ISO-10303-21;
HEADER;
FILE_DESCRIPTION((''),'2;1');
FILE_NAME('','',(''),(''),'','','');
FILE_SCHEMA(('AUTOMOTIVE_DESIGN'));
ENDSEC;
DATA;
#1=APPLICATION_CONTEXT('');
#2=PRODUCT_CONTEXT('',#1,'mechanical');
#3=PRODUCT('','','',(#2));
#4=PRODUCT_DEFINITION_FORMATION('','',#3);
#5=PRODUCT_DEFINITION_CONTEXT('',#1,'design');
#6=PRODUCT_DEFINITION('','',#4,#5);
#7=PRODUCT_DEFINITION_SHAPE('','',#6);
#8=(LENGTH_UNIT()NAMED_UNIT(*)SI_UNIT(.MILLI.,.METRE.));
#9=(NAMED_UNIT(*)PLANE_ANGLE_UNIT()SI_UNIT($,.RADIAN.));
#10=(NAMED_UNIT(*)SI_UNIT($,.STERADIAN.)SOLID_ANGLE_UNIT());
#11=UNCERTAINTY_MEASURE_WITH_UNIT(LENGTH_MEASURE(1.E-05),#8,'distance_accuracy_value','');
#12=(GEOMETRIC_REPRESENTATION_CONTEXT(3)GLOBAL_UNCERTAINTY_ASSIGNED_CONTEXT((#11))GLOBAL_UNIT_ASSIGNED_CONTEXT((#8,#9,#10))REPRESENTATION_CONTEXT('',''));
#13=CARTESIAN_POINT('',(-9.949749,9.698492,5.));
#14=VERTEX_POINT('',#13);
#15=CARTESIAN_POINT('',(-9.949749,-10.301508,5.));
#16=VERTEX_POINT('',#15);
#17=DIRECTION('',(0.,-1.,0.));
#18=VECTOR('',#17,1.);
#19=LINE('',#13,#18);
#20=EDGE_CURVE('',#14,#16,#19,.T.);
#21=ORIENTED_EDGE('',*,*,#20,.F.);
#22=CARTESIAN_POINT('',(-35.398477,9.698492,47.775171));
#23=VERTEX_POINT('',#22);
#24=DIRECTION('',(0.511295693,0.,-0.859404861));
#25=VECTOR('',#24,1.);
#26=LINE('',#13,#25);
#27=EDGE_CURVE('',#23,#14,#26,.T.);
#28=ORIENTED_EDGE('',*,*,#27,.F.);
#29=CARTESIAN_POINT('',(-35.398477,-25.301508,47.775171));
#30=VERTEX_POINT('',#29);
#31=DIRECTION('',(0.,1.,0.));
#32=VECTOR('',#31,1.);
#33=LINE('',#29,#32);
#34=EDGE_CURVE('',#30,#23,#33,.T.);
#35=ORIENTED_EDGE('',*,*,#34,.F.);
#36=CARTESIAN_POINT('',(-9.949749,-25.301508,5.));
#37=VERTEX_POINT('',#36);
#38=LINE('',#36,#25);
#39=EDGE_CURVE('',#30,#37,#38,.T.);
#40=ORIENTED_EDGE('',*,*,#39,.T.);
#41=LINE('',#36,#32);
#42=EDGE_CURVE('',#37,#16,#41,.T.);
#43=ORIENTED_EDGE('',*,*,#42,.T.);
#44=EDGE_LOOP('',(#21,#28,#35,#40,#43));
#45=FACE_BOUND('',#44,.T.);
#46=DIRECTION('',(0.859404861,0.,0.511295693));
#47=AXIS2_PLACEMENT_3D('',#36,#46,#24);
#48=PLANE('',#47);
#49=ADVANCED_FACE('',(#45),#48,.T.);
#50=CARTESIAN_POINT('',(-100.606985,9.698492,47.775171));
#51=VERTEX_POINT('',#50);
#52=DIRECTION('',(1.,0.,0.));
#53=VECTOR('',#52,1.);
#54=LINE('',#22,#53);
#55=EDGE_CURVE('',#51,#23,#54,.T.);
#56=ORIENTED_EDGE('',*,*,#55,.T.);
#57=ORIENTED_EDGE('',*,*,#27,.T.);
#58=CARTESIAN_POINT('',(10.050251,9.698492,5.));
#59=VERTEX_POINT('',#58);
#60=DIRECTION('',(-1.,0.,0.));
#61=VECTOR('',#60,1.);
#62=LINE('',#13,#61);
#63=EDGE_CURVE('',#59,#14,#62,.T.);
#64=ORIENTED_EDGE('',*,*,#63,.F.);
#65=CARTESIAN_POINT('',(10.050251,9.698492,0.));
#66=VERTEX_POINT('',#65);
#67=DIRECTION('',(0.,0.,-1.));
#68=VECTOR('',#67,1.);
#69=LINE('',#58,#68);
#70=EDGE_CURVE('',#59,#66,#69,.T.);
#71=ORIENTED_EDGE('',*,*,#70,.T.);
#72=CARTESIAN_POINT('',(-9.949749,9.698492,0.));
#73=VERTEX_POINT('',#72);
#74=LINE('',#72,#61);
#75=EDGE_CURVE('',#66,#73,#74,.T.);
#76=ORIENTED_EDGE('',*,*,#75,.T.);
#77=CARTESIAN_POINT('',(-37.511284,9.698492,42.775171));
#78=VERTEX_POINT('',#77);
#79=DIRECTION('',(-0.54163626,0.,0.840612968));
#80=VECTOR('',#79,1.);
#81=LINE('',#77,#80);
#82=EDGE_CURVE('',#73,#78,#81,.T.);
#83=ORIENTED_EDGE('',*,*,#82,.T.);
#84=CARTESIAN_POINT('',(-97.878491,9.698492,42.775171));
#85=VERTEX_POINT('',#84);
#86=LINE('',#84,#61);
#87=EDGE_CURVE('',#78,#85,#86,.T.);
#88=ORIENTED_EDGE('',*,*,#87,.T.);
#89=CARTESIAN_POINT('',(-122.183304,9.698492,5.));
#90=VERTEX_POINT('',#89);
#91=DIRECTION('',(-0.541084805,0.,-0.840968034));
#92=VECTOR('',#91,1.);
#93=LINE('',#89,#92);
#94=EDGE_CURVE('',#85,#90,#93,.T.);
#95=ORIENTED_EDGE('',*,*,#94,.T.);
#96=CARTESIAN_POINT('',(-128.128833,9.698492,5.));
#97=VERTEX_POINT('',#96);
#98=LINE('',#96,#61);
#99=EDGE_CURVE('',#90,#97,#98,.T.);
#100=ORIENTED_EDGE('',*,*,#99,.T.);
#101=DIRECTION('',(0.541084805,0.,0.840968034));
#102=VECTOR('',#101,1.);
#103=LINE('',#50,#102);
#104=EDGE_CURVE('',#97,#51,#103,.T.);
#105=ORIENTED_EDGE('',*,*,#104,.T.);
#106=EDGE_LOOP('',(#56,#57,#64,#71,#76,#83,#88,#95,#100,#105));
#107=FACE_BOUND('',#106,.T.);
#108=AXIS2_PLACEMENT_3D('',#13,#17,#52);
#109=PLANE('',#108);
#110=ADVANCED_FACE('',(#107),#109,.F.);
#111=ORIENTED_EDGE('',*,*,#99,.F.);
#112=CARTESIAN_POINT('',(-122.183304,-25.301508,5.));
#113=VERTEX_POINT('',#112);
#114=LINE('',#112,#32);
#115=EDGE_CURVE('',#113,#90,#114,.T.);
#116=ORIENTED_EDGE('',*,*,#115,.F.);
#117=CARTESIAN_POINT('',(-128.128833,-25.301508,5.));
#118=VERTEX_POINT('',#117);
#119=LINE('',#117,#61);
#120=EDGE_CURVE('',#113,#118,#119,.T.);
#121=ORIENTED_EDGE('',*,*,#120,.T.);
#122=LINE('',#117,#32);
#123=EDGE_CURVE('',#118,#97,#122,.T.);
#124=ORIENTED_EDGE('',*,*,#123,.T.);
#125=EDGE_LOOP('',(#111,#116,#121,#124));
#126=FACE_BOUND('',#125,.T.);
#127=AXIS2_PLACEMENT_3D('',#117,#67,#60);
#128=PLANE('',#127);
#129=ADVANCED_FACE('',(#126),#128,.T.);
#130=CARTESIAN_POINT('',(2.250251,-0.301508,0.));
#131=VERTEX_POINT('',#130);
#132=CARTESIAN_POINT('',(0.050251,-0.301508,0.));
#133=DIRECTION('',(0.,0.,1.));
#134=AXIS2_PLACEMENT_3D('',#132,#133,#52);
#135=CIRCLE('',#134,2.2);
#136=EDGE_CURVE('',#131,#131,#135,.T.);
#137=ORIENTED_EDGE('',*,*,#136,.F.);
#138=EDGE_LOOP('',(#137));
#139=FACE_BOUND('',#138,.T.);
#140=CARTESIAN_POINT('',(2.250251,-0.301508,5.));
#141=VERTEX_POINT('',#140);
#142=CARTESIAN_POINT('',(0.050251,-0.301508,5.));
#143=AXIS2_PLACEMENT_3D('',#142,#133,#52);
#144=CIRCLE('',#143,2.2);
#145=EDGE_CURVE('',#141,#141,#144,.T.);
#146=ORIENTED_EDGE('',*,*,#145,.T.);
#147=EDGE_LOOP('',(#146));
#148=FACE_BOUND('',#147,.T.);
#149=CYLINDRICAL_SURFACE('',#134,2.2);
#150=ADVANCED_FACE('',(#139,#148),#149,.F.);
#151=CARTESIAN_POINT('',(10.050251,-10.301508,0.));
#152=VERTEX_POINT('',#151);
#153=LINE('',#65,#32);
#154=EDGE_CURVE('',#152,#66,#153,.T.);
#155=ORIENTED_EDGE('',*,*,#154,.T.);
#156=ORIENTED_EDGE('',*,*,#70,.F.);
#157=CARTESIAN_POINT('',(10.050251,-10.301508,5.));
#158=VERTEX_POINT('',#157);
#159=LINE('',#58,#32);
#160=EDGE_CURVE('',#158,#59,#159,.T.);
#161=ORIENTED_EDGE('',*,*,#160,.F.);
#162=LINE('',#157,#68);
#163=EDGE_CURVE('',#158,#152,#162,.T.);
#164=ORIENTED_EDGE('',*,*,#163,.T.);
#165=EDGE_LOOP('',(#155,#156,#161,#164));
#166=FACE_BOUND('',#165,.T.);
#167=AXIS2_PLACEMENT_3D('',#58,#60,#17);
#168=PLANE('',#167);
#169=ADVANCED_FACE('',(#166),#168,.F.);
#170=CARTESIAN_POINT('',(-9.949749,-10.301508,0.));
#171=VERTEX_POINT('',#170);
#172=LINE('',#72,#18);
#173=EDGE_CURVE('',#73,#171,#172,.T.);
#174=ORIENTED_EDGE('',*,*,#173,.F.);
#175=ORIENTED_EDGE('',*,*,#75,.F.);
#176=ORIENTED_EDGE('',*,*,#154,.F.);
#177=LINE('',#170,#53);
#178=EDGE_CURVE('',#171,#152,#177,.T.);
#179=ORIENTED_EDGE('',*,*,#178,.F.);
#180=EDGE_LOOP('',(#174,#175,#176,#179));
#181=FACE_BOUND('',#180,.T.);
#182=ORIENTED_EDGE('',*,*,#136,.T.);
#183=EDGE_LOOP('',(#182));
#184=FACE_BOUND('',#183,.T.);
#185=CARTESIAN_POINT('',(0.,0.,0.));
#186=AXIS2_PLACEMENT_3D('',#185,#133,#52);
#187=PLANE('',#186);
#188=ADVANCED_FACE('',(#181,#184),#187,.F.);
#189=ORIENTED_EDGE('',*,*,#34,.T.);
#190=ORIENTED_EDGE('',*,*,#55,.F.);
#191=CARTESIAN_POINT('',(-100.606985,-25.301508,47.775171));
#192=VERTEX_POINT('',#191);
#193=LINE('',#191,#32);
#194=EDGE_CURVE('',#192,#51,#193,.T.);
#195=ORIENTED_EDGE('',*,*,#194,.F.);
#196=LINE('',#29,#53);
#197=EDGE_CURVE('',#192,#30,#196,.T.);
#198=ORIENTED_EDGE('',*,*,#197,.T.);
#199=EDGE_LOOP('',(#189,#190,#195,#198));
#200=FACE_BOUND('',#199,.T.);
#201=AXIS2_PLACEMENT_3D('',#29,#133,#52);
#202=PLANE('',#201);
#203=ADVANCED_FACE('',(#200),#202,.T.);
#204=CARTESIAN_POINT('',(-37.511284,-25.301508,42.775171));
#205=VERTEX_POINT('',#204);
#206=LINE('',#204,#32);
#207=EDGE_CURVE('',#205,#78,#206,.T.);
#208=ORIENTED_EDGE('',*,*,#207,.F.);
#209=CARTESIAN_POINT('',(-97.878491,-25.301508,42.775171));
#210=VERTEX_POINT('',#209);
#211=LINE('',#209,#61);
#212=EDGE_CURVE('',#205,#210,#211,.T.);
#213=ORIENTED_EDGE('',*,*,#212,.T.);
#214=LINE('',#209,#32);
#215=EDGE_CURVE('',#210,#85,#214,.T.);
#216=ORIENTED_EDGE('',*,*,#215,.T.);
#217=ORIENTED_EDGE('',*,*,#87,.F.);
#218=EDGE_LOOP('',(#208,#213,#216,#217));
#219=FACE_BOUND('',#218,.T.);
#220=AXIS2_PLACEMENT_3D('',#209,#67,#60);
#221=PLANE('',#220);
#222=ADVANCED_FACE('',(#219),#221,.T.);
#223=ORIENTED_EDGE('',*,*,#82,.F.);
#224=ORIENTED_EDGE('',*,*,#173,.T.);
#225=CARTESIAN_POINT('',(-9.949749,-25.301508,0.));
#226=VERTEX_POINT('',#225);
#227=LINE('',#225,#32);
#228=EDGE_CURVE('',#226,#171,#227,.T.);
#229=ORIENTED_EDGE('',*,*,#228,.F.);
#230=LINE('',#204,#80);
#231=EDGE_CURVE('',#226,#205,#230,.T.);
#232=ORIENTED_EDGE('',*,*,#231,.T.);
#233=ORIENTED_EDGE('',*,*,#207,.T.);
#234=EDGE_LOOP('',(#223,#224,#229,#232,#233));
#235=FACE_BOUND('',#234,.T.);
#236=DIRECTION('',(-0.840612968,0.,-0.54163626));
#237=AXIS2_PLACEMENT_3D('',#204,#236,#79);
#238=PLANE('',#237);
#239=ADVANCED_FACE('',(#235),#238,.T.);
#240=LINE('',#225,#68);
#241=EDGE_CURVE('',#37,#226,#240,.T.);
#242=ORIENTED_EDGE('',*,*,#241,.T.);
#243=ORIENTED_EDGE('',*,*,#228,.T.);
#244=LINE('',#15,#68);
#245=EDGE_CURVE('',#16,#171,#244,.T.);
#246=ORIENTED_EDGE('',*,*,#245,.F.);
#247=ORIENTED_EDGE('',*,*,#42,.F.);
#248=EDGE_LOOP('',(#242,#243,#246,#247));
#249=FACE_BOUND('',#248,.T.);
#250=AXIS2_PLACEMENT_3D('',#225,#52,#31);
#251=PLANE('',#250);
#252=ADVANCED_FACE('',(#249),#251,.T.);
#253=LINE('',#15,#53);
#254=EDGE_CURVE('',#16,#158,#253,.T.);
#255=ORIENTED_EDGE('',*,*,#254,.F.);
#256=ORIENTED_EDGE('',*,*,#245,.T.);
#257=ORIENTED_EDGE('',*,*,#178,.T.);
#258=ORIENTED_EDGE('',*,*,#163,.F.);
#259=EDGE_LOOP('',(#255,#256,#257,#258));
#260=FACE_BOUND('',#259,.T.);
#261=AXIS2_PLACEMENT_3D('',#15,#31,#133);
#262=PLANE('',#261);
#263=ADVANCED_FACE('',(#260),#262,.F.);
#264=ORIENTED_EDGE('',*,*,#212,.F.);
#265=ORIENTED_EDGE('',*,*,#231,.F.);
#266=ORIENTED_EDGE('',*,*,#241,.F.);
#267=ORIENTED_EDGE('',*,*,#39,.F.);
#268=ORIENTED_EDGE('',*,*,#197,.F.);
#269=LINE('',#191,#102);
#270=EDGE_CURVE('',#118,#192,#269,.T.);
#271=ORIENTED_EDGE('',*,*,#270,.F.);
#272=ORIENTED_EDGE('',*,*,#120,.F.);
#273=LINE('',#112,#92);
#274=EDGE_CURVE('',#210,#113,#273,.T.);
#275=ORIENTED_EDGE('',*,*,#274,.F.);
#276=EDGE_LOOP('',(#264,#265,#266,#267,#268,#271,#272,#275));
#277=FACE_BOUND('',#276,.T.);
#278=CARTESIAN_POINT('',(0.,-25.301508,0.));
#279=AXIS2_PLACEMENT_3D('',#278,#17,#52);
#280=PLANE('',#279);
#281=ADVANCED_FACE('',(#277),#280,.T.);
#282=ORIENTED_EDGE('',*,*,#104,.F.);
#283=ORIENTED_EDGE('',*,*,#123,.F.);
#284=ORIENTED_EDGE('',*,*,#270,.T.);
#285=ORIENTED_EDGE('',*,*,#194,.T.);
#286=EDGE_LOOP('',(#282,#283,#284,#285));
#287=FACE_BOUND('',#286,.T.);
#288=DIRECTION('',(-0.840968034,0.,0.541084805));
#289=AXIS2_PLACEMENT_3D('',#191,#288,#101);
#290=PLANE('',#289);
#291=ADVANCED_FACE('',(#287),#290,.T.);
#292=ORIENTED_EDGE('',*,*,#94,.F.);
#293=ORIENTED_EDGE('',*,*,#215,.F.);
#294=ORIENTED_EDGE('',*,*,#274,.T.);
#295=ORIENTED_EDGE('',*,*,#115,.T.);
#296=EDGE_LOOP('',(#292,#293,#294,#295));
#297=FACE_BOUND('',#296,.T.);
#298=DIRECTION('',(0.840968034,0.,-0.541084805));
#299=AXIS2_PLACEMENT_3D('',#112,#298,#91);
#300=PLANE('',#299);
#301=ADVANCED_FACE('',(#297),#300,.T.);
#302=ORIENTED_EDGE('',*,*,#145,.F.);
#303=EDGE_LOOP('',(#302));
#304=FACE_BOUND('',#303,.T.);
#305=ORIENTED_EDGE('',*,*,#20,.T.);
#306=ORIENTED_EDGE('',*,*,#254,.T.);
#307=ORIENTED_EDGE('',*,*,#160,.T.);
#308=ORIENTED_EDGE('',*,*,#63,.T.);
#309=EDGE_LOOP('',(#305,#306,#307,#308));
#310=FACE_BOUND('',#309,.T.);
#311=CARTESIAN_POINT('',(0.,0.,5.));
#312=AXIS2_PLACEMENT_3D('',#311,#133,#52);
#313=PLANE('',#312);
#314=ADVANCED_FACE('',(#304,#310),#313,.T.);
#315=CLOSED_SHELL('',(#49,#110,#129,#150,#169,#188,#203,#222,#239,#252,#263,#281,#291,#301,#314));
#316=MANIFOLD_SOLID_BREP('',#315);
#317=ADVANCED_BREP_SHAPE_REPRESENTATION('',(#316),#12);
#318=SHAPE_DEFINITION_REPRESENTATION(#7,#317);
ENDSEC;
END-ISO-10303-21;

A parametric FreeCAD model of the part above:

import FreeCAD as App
import Part
import Sketcher
from FreeCAD import Vector


def add_polygon(sketch, points):
    """Adds a closed chain of lines whose ends are joined by coincident constraints."""
    first, n = sketch.GeometryCount, len(points)
    for a, b in zip(points, points[1:] + points[:1]):
        sketch.addGeometry(Part.LineSegment(App.Vector(*a, 0), App.Vector(*b, 0)), False)
    for i in range(n):
        sketch.addConstraint(Sketcher.Constraint("Coincident", first + i, 2, first + (i + 1) % n, 1))

doc = App.newDocument("Part")
params = doc.addObject("Spreadsheet::Sheet", "Params")
for row, (alias, value) in enumerate([
    ("sketch1_width", "20 mm"),
    ("pad1_length", "5 mm"),
    ("sketch2_diameter", "4.4 mm"),
    ("pocket1_length", "5 mm"),
    ("sketch3_height", "5 mm"),
    ("pad2_length", "35 mm"),
], start=1):
    params.set(f"A{row}", alias)
    params.set(f"B{row}", "=" + value)
    params.setAlias(f"B{row}", alias)

body = doc.addObject("PartDesign::Body", "Body")

sketch1 = body.newObject("Sketcher::SketchObject", "Sketch")
sketch1.AttachmentSupport = (doc.getObject("XY_Plane"), [""])
sketch1.MapMode = "FlatFace"
add_polygon(sketch1, [(-10, 10), (-10, -10), (10, -10), (10, 10)])
sketch1.addConstraint([
    Sketcher.Constraint("Vertical", 0),
    Sketcher.Constraint("Horizontal", 1),
    Sketcher.Constraint("Vertical", 2),
    Sketcher.Constraint("Horizontal", 3),
    Sketcher.Constraint("Equal", 3, 0),
    Sketcher.Constraint("DistanceX", 1, 1, 1, 2, 20.0),
    Sketcher.Constraint("DistanceX", 0, 2, -1, 1, 9.949749),
    Sketcher.Constraint("DistanceY", 0, 2, -1, 1, 10.301508),
])
sketch1.setExpression("Constraints[9]", "Params.sketch1_width")
pad1 = body.newObject("PartDesign::Pad", "Pad")
pad1.Profile = sketch1
pad1.setExpression("Length", "Params.pad1_length")

sketch2 = body.newObject("Sketcher::SketchObject", "Sketch001")
sketch2.AttachmentSupport = (doc.getObject("XY_Plane"), [""])
sketch2.MapMode = "FlatFace"
sketch2.AttachmentOffset = App.Placement(Vector(0, 0, 5), App.Rotation())
sketch2.addGeometry(Part.Circle(Vector(0.1, -0.3, 0), Vector(0, 0, 1), 2.2), False)
sketch2.addConstraint([
    Sketcher.Constraint("Diameter", 0, 4.4),
    Sketcher.Constraint("DistanceX", -1, 1, 0, 3, 0.050251),
    Sketcher.Constraint("DistanceY", 0, 3, -1, 1, 0.301508),
])
sketch2.setExpression("Constraints[0]", "Params.sketch2_diameter")
pocket1 = body.newObject("PartDesign::Pocket", "Pocket")
pocket1.Profile = sketch2
pocket1.setExpression("Length", "Params.pocket1_length")

sketch3 = body.newObject("Sketcher::SketchObject", "Sketch002")
sketch3.AttachmentSupport = (doc.getObject("XZ_Plane"), [""])
sketch3.MapMode = "FlatFace"
sketch3.AttachmentOffset = App.Placement(Vector(0, 0, -9.698492), App.Rotation())
add_polygon(sketch3, [(-35, 48), (-10, 5), (-10, 0), (-38, 43), (-98, 43), (-122, 5), (-128, 5), (-101, 48)])
sketch3.addConstraint([
    Sketcher.Constraint("Vertical", 1),
    Sketcher.Constraint("Horizontal", 3),
    Sketcher.Constraint("Horizontal", 5),
    Sketcher.Constraint("Horizontal", 7),
    Sketcher.Constraint("PointOnObject", 1, 2, -1),
    Sketcher.Constraint("Parallel", 4, 6),
    Sketcher.Constraint("Horizontal", 0, 2, 4, 2),
    Sketcher.Constraint("DistanceY", 1, 2, 1, 1, 5.0),
    Sketcher.Constraint("DistanceY", 3, 2, 6, 2, 5.0),
    Sketcher.Constraint("DistanceX", 5, 2, 5, 1, 5.945529),
    Sketcher.Constraint("DistanceX", 6, 2, 2, 2, 63.095701),
    Sketcher.Constraint("Distance", 2, 50.88569),
    Sketcher.Constraint("DistanceX", 3, 2, 3, 1, 60.367207),
    Sketcher.Constraint("DistanceX", 7, 1, 7, 2, 65.208508),
    Sketcher.Constraint("DistanceX", 0, 2, -1, 1, 9.949749),
    Sketcher.Constraint("DistanceY", -1, 1, 2, 2, 42.775171),
])
sketch3.setExpression("Constraints[15]", "Params.sketch3_height")
pad2 = body.newObject("PartDesign::Pad", "Pad001")
pad2.Profile = sketch3
pad2.setExpression("Length", "Params.pad2_length")

doc.recompute()
